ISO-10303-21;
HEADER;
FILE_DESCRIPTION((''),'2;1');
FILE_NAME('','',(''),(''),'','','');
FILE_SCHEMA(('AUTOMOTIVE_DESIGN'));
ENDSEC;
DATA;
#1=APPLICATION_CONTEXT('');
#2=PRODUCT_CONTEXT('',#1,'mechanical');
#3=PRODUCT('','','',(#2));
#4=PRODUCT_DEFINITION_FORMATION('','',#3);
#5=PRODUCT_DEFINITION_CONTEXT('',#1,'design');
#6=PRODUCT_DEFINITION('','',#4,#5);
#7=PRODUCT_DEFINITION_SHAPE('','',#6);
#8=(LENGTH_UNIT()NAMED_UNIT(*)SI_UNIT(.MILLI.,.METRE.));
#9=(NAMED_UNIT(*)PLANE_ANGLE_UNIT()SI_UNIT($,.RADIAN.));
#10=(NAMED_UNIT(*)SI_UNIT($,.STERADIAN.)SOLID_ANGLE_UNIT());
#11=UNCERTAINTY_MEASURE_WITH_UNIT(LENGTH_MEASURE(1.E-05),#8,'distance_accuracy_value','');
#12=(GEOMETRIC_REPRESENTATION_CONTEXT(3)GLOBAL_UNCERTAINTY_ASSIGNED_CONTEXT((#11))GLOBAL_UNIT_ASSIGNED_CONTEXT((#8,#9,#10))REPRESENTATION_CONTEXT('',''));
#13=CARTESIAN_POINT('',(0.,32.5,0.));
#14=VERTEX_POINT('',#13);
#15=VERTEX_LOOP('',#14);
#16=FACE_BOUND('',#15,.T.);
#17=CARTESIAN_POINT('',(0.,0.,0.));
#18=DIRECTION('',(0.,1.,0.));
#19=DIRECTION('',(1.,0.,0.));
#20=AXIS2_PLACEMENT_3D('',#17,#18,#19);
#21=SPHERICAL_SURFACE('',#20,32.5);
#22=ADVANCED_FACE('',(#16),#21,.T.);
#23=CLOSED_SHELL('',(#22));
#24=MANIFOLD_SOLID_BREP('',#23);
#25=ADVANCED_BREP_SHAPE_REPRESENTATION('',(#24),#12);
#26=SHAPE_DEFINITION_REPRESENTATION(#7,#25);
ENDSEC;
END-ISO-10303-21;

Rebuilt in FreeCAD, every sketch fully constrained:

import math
import FreeCAD as App
import Part
import Sketcher

V = App.Vector

doc = App.newDocument("Part")
body = doc.addObject("PartDesign::Body", "Body")

sketch1 = body.newObject("Sketcher::SketchObject", "Sketch")
sketch1.AttachmentSupport = (doc.getObject("XY_Plane"), [""])
sketch1.MapMode = "FlatFace"
sketch1.addGeometry([
    Part.LineSegment(V(0, 32, 0), V(0, -32, 0)),
    Part.ArcOfCircle(Part.Circle(V(0, 0, 0), V(0, 0, 1), 32), math.radians(-90), math.radians(90)),
], False)
sketch1.addConstraint([
    Sketcher.Constraint("Coincident", 0, 1, 1, 2),
    Sketcher.Constraint("Coincident", 1, 1, 0, 2),
    Sketcher.Constraint("Vertical", 0),
    Sketcher.Constraint("Coincident", 1, 3, -1, 1),
    Sketcher.Constraint("PointOnObject", 0, 1, -2),
    Sketcher.Constraint("Radius", 1, 32.5),
])
revolution = body.newObject("PartDesign::Revolution", "Revolution")
revolution.Profile = sketch1
revolution.ReferenceAxis = (sketch1, ["V_Axis"])
revolution.Angle = 360

doc.recompute()
